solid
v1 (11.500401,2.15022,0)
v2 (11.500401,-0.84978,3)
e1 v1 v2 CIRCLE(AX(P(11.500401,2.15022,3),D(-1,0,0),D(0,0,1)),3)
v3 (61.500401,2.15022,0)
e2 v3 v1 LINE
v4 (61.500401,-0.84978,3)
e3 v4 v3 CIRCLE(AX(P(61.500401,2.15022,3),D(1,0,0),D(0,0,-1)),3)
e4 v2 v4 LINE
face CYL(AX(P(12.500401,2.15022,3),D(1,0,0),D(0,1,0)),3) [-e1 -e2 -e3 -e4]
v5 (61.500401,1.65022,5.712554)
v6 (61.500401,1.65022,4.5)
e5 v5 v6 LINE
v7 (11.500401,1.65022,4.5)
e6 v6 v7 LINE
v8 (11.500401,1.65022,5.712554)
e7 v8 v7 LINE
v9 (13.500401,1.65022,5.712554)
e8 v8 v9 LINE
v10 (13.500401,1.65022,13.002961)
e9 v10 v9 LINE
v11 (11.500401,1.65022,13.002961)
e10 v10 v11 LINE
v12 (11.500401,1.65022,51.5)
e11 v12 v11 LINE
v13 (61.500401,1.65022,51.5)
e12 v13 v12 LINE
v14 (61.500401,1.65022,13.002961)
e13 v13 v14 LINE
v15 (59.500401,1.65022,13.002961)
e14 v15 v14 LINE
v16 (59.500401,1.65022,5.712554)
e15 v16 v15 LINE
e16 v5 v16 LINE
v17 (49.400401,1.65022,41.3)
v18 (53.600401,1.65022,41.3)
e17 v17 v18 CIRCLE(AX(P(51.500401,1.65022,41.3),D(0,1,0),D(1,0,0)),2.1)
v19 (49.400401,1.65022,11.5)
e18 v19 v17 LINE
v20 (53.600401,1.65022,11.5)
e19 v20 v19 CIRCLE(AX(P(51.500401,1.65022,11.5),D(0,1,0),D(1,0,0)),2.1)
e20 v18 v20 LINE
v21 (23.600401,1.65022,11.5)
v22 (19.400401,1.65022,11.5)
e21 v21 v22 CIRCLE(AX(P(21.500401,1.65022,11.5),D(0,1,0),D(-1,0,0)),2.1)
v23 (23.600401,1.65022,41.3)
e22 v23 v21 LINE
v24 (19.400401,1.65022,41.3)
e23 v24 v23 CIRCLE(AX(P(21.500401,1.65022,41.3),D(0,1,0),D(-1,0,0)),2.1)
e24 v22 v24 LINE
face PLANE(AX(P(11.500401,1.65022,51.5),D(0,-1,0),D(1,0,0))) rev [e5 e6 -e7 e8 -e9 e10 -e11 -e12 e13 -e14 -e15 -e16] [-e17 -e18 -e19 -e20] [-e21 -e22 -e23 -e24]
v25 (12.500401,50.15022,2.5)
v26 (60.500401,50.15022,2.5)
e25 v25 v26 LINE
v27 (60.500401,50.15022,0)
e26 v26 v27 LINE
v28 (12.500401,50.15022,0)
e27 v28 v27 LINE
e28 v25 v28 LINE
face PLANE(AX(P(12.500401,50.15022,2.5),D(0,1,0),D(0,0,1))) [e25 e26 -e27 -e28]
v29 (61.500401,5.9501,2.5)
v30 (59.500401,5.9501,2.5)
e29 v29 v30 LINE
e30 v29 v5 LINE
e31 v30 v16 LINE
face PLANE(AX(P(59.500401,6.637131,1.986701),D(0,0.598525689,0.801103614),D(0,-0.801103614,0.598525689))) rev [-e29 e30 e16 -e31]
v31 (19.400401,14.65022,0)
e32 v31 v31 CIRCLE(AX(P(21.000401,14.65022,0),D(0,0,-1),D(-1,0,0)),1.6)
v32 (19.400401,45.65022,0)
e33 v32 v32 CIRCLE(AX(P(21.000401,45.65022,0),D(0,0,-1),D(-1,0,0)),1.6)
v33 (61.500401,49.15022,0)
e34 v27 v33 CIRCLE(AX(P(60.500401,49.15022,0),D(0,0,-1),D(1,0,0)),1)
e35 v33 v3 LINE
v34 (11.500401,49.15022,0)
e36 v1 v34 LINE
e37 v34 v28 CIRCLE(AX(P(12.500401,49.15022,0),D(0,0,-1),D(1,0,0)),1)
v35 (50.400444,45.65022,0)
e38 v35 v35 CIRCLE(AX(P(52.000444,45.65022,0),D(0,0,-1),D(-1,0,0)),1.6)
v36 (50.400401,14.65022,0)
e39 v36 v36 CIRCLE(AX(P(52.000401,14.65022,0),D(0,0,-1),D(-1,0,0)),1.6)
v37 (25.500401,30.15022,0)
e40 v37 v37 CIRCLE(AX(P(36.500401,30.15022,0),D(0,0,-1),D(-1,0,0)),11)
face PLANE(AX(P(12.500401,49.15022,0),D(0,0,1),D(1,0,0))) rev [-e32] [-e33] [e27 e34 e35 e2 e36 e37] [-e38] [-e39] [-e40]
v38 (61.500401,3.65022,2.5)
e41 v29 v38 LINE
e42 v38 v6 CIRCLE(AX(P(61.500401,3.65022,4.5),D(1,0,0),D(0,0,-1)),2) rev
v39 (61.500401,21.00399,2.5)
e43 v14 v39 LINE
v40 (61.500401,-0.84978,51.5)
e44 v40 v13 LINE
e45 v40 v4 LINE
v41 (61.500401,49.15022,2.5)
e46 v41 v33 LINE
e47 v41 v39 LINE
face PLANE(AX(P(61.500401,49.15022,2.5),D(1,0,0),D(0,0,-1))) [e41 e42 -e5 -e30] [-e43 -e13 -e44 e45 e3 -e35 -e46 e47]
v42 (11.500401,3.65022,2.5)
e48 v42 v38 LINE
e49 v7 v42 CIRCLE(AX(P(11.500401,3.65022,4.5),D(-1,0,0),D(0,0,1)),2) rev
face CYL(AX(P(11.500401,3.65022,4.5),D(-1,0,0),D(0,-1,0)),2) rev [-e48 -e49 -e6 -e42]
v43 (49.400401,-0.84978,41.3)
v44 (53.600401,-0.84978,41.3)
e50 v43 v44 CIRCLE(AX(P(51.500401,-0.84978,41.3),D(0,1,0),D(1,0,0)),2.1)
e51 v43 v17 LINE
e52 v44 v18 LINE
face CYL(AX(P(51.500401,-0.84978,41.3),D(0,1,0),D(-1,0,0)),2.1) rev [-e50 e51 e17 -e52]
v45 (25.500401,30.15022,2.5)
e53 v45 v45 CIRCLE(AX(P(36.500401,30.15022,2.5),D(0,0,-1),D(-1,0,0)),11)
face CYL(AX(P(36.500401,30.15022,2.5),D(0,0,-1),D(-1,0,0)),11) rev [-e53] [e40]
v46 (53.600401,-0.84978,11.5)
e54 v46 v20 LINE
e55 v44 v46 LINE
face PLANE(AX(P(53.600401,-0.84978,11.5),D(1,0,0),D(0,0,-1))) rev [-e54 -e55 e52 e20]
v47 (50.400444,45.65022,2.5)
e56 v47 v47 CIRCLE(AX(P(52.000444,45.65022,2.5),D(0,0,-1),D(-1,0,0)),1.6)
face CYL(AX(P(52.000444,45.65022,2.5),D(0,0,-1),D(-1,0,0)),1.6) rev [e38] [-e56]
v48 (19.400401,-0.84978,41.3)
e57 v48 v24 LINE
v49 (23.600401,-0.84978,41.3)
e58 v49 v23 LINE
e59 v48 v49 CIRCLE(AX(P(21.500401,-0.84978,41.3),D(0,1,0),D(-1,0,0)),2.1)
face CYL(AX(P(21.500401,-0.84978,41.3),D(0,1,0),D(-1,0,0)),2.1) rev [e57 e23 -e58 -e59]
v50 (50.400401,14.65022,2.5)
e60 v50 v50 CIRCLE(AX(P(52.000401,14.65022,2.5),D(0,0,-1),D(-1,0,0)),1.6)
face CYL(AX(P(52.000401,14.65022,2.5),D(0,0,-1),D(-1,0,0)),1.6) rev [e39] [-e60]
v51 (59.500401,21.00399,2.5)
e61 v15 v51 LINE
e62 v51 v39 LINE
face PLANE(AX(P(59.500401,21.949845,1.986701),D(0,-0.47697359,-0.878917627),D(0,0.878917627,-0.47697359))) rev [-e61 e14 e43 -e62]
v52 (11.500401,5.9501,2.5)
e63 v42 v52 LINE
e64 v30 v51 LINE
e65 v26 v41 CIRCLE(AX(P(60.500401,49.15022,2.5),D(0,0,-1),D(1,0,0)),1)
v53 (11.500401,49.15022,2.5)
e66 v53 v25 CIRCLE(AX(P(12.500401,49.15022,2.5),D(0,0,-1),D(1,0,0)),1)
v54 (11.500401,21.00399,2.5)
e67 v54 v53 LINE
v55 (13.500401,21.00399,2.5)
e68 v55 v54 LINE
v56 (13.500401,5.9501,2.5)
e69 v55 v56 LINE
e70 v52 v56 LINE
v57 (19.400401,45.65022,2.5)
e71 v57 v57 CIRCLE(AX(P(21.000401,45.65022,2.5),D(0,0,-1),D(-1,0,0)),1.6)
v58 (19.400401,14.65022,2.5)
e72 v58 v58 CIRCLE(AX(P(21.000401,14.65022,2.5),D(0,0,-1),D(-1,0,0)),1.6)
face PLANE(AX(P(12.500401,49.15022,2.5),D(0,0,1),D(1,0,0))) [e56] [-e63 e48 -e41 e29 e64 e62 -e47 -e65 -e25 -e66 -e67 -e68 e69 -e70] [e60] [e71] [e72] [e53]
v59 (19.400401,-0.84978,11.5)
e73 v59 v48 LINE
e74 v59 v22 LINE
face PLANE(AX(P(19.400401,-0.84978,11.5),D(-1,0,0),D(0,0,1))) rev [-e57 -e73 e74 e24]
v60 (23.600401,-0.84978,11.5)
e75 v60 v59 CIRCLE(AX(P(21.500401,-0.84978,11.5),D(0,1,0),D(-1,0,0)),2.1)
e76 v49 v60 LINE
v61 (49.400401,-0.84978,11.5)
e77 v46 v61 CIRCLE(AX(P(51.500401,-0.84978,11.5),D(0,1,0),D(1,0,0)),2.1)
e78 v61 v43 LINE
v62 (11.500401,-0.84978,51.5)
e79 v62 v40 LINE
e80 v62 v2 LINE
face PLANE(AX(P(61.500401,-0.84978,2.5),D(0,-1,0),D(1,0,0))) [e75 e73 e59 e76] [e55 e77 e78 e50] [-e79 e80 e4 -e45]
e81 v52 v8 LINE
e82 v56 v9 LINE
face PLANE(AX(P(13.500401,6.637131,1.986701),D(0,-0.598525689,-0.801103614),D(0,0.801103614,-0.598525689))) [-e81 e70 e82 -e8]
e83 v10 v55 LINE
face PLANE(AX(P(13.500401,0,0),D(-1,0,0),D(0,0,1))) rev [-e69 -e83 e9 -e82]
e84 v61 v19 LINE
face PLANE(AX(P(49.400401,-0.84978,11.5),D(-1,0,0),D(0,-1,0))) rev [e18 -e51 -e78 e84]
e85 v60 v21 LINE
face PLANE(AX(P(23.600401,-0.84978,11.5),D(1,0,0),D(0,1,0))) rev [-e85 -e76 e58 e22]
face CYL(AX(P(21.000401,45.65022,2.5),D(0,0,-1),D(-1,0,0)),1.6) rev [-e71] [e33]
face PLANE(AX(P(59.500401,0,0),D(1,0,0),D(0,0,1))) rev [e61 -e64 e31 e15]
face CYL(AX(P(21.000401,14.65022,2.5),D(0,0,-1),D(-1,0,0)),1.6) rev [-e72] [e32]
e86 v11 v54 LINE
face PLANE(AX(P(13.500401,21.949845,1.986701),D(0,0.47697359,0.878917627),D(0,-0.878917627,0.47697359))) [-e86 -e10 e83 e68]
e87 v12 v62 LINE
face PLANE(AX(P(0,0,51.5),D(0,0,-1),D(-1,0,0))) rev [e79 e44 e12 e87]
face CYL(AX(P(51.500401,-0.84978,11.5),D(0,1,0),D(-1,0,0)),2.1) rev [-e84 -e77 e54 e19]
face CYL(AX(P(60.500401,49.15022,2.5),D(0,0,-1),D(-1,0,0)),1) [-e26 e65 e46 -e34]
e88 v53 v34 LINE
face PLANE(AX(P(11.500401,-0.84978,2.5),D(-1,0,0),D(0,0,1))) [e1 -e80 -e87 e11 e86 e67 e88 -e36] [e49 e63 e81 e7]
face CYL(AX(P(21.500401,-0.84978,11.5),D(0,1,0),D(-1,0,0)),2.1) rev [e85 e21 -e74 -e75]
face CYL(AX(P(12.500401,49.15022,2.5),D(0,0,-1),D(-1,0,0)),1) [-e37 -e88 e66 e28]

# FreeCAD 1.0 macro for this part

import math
import FreeCAD as App
import Part
import Sketcher

V = App.Vector


def edges_at(feature, points):
    """Names of the edges that pass closest to the given points."""
    edges = feature.Shape.Edges
    near = lambda p: min(range(len(edges)), key=lambda i: edges[i].distToShape(Part.Vertex(*p))[0])
    return sorted({f"Edge{near(p) + 1}" for p in points})

doc = App.newDocument("Part")
body = doc.addObject("PartDesign::Body", "Body")

# Sketch on XY plane
sketch1 = body.newObject("Sketcher::SketchObject", "Sketch")
sketch1.AttachmentSupport = (doc.getObject("XY_Plane"), [""])
sketch1.MapMode = "FlatFace"
sketch1.addGeometry([
    Part.LineSegment(V(11.5, -0.8, 0), V(11.5, 49.2, 0)),  # 0
    Part.ArcOfCircle(Part.Circle(V(12.5, 49.2, 0), V(0, 0, 1), 1), math.radians(90), math.radians(180)),  # 1
    Part.LineSegment(V(12.5, 50.2, 0), V(60.5, 50.2, 0)),  # 2
    Part.ArcOfCircle(Part.Circle(V(60.5, 49.2, 0), V(0, 0, 1), 1), math.radians(0), math.radians(90)),  # 3
    Part.LineSegment(V(61.5, 49.2, 0), V(61.5, -0.8, 0)),  # 4
    Part.LineSegment(V(61.5, -0.8, 0), V(11.5, -0.8, 0)),  # 5
    Part.Circle(V(52, 14.7, 0), V(0, 0, 1), 1.6),  # 6
    Part.Circle(V(21, 14.7, 0), V(0, 0, 1), 1.6),  # 7
    Part.Circle(V(52, 45.7, 0), V(0, 0, 1), 1.6),  # 8
    Part.Circle(V(36.5, 30.2, 0), V(0, 0, 1), 11),  # 9
    Part.Circle(V(21, 45.7, 0), V(0, 0, 1), 1.6),  # 10
], False)
sketch1.addConstraint([
    Sketcher.Constraint("Tangent", 0, 2, 1, 2),
    Sketcher.Constraint("Tangent", 1, 1, 2, 1),
    Sketcher.Constraint("Tangent", 2, 2, 3, 2),
    Sketcher.Constraint("Tangent", 3, 1, 4, 1),
    Sketcher.Constraint("Coincident", 4, 2, 5, 1),
    Sketcher.Constraint("Coincident", 5, 2, 0, 1),
    Sketcher.Constraint("Vertical", 0),
    Sketcher.Constraint("Horizontal", 2),
    Sketcher.Constraint("Vertical", 4),
    Sketcher.Constraint("Horizontal", 5),
    Sketcher.Constraint("Equal", 1, 3),
    Sketcher.Constraint("Equal", 6, 7),
    Sketcher.Constraint("Equal", 7, 8),
    Sketcher.Constraint("Equal", 8, 10),
    Sketcher.Constraint("Horizontal", 6, 3, 7, 3),
    Sketcher.Constraint("Horizontal", 8, 3, 10, 3),
    Sketcher.Constraint("Vertical", 7, 3, 10, 3),
    Sketcher.Constraint("Equal", 5, 0),
    Sketcher.Constraint("Diameter", 9, 22.0),
    Sketcher.Constraint("Radius", 1, 1.0),
    Sketcher.Constraint("Diameter", 6, 3.2),
    Sketcher.Constraint("DistanceX", 2, 1, 2, 2, 48.0),
    Sketcher.Constraint("DistanceX", 7, 3, 6, 3, 31.0),
    Sketcher.Constraint("DistanceY", 6, 3, 8, 3, 31.0),
    Sketcher.Constraint("DistanceX", 1, 3, 9, 3, 24.0),
    Sketcher.Constraint("DistanceY", 9, 3, 1, 3, 19.0),
    Sketcher.Constraint("DistanceX", 6, 3, 3, 3, 8.5),
    Sketcher.Constraint("DistanceY", 6, 3, 3, 3, 34.5),
    Sketcher.Constraint("DistanceX", -1, 1, 1, 3, 12.500401),
    Sketcher.Constraint("DistanceY", -1, 1, 1, 3, 49.15022),
    Sketcher.Constraint("DistanceX", -1, 1, 8, 3, 52.000444),
])
pad1 = body.newObject("PartDesign::Pad", "Pad")
pad1.Profile = sketch1
pad1.Length = 2.5

# Sketch on XY plane
sketch2 = body.newObject("Sketcher::SketchObject", "Sketch001")
sketch2.AttachmentSupport = (doc.getObject("XY_Plane"), [""])
sketch2.MapMode = "FlatFace"
sketch2.AttachmentOffset = App.Placement(V(0, 0, 2.5), App.Rotation())
sketch2.addGeometry([
    Part.LineSegment(V(11.5, 1.7, 0), V(11.5, -0.8, 0)),
    Part.LineSegment(V(11.5, -0.8, 0), V(61.5, -0.8, 0)),
    Part.LineSegment(V(61.5, -0.8, 0), V(61.5, 1.7, 0)),
    Part.LineSegment(V(61.5, 1.7, 0), V(11.5, 1.7, 0)),
], False)
sketch2.addConstraint([
    Sketcher.Constraint("Coincident", 0, 2, 1, 1),
    Sketcher.Constraint("Coincident", 1, 2, 2, 1),
    Sketcher.Constraint("Coincident", 2, 2, 3, 1),
    Sketcher.Constraint("Coincident", 3, 2, 0, 1),
    Sketcher.Constraint("Vertical", 0),
    Sketcher.Constraint("Horizontal", 1),
    Sketcher.Constraint("Vertical", 2),
    Sketcher.Constraint("Horizontal", 3),
    Sketcher.Constraint("DistanceX", 1, 1, 1, 2, 50.0),
    Sketcher.Constraint("DistanceY", 0, 2, 0, 1, 2.5),
    Sketcher.Constraint("DistanceX", -1, 1, 0, 2, 11.500401),
    Sketcher.Constraint("DistanceY", 0, 2, -1, 1, 0.84978),
])
pad2 = body.newObject("PartDesign::Pad", "Pad001")
pad2.Profile = sketch2
pad2.Length = 49

# Sketch on XZ plane
sketch3 = body.newObject("Sketcher::SketchObject", "Sketch002")
sketch3.AttachmentSupport = (doc.getObject("XZ_Plane"), [""])
sketch3.MapMode = "FlatFace"
sketch3.AttachmentOffset = App.Placement(V(0, 0, -1.65022), App.Rotation())
sketch3.addGeometry([
    Part.LineSegment(V(23.6, 41.3, 0), V(23.6, 11.5, 0)),  # 0
    Part.ArcOfCircle(Part.Circle(V(21.5, 11.5, 0), V(0, 0, 1), 2.1), math.radians(180), math.radians(360)),  # 1
    Part.LineSegment(V(19.4, 11.5, 0), V(19.4, 41.3, 0)),  # 2
    Part.ArcOfCircle(Part.Circle(V(21.5, 41.3, 0), V(0, 0, 1), 2.1), math.radians(0), math.radians(180)),  # 3
    Part.LineSegment(V(49.4, 11.5, 0), V(49.4, 41.3, 0)),  # 4
    Part.ArcOfCircle(Part.Circle(V(51.5, 41.3, 0), V(0, 0, 1), 2.1), math.radians(0), math.radians(180)),  # 5
    Part.LineSegment(V(53.6, 41.3, 0), V(53.6, 11.5, 0)),  # 6
    Part.ArcOfCircle(Part.Circle(V(51.5, 11.5, 0), V(0, 0, 1), 2.1), math.radians(180), math.radians(360)),  # 7
], False)
sketch3.addConstraint([
    Sketcher.Constraint("Tangent", 0, 2, 1, 2),
    Sketcher.Constraint("Tangent", 1, 1, 2, 1),
    Sketcher.Constraint("Tangent", 2, 2, 3, 2),
    Sketcher.Constraint("Tangent", 3, 1, 0, 1),
    Sketcher.Constraint("Tangent", 4, 2, 5, 2),
    Sketcher.Constraint("Tangent", 5, 1, 6, 1),
    Sketcher.Constraint("Tangent", 6, 2, 7, 2),
    Sketcher.Constraint("Tangent", 7, 1, 4, 1),
    Sketcher.Constraint("Vertical", 0),
    Sketcher.Constraint("Vertical", 2),
    Sketcher.Constraint("Vertical", 4),
    Sketcher.Constraint("Vertical", 6),
    Sketcher.Constraint("Equal", 3, 5),
    Sketcher.Constraint("Horizontal", 3, 3, 5, 3),
    Sketcher.Constraint("Horizontal", 1, 3, 7, 3),
    Sketcher.Constraint("Radius", 1, 2.1),
    Sketcher.Constraint("DistanceY", 0, 2, 0, 1, 29.8),
    Sketcher.Constraint("DistanceX", 3, 3, 5, 3, 30.0),
    Sketcher.Constraint("DistanceY", -1, 1, 1, 3, 11.5),
    Sketcher.Constraint("DistanceX", -1, 1, 1, 3, 21.500401),
])
pocket1 = body.newObject("PartDesign::Pocket", "Pocket")
pocket1.Profile = sketch3
pocket1.Type = "ThroughAll"
pocket1.Reversed = True
doc.recompute()

fillet = body.newObject("PartDesign::Fillet", "Fillet")
fillet.Base = (pocket1, edges_at(pocket1, [(36.5, -0.85, 0)]))
fillet.Radius = 3
doc.recompute()

fillet2 = body.newObject("PartDesign::Fillet", "Fillet001")
fillet2.Base = (fillet, edges_at(fillet, [(36.5, 1.65, 2.5)]))
fillet2.Radius = 2

# Sketch on YZ plane
sketch4 = body.newObject("Sketcher::SketchObject", "Sketch003")
sketch4.AttachmentSupport = (doc.getObject("YZ_Plane"), [""])
sketch4.MapMode = "FlatFace"
sketch4.AttachmentOffset = App.Placement(V(0, 0, 11.500401), App.Rotation())
sketch4.addGeometry([
    Part.LineSegment(V(7, 2, 0), V(1, 6, 0)),
    Part.LineSegment(V(1, 6, 0), V(1, 13, 0)),
    Part.LineSegment(V(1, 13, 0), V(22, 2, 0)),
    Part.LineSegment(V(22, 2, 0), V(7, 2, 0)),
], False)
sketch4.addConstraint([
    Sketcher.Constraint("Coincident", 0, 2, 1, 1),
    Sketcher.Constraint("Coincident", 1, 2, 2, 1),
    Sketcher.Constraint("Coincident", 2, 2, 3, 1),
    Sketcher.Constraint("Coincident", 3, 2, 0, 1),
    Sketcher.Constraint("Vertical", 1),
    Sketcher.Constraint("Horizontal", 3),
    Sketcher.Constraint("DistanceY", 1, 1, 1, 2, 7.17982),
    Sketcher.Constraint("DistanceY", -1, 1, 2, 2, 1.986701),
    Sketcher.Constraint("DistanceX", 3, 2, 3, 1, 15.312714),
    Sketcher.Constraint("DistanceX", -1, 1, 3, 2, 6.637131),
    Sketcher.Constraint("DistanceX", 0, 2, 2, 2, 20.84054),
    Sketcher.Constraint("Distance", 0, 6.900264),
])
pad3 = body.newObject("PartDesign::Pad", "Pad002")
pad3.Profile = sketch4
pad3.Length = 2
doc.recompute()

datumplane = body.newObject("PartDesign::Plane", "DatumPlane")
datumplane.AttachmentSupport = (doc.getObject("YZ_Plane"), [""])
datumplane.MapMode = "FlatFace"
datumplane.AttachmentOffset = App.Placement(V(0, 0, 36.500401), App.Rotation())
mirrored = body.newObject("PartDesign::Mirrored", "Mirrored")
mirrored.Originals = [pad3]
mirrored.MirrorPlane = (datumplane, [""])
body.Tip = mirrored

doc.recompute()
